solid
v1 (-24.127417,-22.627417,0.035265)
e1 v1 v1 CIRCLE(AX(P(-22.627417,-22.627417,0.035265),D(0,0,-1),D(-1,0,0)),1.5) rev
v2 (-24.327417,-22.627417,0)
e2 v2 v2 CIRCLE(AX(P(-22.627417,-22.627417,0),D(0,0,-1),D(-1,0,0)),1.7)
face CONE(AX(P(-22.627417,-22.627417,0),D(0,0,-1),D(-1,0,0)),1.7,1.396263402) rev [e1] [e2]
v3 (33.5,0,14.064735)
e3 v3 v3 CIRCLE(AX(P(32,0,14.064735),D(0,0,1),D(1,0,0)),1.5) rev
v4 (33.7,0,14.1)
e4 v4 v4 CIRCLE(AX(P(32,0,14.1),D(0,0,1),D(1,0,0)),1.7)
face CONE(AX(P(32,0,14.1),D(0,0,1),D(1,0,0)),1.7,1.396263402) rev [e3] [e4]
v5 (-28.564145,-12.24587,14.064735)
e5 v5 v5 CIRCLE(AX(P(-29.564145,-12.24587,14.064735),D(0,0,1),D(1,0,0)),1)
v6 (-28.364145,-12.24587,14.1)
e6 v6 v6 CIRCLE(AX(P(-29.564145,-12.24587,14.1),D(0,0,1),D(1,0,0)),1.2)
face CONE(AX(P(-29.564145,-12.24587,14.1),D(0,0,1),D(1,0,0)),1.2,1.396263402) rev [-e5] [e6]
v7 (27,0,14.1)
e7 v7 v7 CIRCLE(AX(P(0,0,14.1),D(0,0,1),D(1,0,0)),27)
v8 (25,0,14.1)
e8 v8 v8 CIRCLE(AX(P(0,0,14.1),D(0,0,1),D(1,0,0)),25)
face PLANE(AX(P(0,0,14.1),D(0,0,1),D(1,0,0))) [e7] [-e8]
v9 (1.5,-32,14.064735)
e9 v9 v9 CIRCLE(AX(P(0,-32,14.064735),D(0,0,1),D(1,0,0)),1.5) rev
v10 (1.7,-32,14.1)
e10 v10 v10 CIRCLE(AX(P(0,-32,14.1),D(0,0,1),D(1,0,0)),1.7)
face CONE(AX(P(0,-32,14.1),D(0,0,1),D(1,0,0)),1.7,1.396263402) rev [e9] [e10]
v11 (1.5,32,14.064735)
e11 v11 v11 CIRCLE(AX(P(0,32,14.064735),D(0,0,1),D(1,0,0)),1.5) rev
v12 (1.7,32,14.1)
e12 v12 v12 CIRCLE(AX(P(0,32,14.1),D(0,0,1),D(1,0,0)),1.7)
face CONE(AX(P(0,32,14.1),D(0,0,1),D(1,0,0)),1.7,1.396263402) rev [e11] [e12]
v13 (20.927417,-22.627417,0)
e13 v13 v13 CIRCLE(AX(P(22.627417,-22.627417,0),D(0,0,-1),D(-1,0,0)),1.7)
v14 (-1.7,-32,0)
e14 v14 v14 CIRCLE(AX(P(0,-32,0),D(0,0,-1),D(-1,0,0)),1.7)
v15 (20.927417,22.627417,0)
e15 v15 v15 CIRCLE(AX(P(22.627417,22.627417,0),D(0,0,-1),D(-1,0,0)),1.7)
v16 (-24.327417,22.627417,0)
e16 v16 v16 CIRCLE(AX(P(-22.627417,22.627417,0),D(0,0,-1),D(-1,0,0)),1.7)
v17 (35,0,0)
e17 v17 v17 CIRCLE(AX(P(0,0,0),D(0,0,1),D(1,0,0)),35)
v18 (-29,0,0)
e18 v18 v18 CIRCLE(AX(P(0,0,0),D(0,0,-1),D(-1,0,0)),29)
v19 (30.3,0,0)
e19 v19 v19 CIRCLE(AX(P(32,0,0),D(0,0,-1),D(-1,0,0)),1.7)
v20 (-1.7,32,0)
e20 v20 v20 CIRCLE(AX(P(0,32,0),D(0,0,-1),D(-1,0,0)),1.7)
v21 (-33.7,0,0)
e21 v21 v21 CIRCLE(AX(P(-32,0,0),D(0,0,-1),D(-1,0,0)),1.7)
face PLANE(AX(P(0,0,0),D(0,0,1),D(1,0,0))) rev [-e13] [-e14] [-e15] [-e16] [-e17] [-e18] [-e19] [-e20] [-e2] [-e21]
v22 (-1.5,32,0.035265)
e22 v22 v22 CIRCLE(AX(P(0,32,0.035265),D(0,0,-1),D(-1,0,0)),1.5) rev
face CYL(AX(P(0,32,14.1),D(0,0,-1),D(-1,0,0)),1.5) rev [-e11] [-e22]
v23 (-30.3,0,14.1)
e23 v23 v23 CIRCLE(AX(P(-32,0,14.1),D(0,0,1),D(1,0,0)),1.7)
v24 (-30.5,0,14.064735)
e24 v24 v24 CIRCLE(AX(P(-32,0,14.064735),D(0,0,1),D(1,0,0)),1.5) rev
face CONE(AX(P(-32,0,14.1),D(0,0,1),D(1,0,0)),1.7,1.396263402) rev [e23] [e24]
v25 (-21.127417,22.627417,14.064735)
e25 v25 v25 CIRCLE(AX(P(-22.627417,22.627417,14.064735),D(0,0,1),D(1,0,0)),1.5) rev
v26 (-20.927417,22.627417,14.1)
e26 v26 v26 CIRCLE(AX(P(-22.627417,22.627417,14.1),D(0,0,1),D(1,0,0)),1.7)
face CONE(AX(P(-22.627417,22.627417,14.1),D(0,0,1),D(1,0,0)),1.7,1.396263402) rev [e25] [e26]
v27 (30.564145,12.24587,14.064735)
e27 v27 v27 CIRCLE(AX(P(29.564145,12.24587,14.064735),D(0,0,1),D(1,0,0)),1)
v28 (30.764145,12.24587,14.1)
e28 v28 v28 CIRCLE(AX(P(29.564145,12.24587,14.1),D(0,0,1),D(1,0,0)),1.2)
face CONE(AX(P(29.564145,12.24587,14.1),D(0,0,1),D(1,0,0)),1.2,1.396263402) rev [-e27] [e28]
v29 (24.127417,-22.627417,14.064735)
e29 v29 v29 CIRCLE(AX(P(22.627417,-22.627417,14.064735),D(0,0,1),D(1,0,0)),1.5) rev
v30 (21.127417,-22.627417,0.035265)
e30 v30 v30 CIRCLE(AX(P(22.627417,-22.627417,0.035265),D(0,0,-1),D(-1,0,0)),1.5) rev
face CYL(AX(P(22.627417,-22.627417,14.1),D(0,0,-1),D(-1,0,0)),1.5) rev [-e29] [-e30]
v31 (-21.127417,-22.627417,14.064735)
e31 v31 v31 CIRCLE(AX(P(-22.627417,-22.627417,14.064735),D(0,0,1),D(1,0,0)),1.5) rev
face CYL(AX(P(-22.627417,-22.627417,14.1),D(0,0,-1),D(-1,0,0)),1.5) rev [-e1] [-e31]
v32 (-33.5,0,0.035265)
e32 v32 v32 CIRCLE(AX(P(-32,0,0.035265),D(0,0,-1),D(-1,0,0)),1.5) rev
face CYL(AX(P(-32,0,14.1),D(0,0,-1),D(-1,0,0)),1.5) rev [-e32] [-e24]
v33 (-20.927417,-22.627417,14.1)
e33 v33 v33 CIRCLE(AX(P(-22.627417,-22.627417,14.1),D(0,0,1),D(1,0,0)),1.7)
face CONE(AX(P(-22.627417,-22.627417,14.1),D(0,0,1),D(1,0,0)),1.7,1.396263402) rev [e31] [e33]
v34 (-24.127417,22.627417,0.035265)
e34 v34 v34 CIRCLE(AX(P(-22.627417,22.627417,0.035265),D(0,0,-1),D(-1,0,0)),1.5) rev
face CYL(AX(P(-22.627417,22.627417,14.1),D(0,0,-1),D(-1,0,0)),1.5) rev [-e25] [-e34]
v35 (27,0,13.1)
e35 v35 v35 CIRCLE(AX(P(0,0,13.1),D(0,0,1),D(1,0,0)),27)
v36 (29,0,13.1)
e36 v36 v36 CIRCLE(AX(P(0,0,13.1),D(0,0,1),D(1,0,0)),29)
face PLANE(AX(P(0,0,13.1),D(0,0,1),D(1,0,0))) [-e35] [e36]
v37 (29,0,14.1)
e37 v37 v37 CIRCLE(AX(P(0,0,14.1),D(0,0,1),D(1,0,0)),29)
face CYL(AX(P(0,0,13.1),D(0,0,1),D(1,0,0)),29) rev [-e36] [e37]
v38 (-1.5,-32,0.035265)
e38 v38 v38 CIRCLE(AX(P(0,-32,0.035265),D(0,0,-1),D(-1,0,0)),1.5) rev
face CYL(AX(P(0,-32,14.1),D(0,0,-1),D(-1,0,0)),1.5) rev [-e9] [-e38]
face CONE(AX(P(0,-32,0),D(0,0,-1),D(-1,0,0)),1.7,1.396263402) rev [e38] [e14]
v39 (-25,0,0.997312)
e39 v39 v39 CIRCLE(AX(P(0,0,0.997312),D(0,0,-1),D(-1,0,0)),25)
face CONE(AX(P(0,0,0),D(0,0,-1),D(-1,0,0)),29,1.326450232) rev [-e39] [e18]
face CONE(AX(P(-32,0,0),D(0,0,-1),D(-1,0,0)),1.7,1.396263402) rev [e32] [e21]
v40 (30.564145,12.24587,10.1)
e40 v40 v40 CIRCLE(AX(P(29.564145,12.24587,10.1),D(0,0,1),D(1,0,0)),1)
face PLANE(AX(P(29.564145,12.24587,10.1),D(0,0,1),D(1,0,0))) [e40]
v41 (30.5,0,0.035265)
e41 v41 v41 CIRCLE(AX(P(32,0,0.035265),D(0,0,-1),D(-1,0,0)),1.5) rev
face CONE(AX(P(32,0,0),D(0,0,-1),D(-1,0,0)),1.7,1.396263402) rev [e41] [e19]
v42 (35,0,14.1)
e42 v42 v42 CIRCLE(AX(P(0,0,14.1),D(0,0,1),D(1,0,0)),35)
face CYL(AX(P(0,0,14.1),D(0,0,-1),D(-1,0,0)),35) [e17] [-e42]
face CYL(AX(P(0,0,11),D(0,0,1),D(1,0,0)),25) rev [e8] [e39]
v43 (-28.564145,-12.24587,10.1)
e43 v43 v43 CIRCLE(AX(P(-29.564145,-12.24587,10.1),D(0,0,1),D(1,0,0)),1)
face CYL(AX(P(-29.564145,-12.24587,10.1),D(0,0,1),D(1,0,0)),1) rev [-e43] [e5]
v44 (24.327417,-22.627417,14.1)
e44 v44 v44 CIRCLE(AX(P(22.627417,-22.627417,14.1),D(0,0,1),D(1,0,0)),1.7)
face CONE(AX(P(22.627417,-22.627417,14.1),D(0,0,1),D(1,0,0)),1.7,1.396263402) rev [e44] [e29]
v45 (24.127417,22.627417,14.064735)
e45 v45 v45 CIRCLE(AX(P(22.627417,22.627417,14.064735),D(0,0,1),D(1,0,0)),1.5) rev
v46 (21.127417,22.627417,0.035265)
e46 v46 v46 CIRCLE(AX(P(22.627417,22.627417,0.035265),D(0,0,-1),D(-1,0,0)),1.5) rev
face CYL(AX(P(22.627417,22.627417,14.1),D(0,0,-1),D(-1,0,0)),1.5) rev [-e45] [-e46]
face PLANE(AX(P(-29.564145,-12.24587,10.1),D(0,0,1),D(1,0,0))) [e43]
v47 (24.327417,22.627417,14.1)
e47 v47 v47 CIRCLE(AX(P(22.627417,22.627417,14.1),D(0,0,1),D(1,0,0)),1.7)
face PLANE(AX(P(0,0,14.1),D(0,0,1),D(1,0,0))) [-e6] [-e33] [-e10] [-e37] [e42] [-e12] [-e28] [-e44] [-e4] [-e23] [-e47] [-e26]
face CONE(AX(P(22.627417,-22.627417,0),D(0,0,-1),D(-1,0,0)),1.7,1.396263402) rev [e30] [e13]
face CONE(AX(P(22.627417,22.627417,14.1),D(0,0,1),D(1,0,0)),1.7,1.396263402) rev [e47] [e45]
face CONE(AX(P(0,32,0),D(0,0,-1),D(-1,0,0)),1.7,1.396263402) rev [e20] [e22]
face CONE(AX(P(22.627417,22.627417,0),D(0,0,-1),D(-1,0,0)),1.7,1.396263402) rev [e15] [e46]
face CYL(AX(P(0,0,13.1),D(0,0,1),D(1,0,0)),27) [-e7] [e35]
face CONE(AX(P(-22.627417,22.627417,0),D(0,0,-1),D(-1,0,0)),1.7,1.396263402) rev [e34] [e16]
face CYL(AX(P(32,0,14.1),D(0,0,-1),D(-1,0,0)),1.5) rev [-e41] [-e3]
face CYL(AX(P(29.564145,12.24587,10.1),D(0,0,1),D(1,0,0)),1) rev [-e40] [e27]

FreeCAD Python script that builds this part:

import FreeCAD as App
import Part
import Sketcher
Q = App.Units.Quantity


def faces_at(feature, points):
    """Names of the faces that lie closest to the given points."""
    faces = feature.Shape.Faces
    near = lambda p: min(range(len(faces)), key=lambda i: faces[i].distToShape(Part.Vertex(*p))[0])
    return sorted({f"Face{near(p) + 1}" for p in points})


def add_polygon(sketch, points):
    """Adds a closed chain of lines whose ends are joined by coincident constraints."""
    first, n = sketch.GeometryCount, len(points)
    for a, b in zip(points, points[1:] + points[:1]):
        sketch.addGeometry(Part.LineSegment(App.Vector(*a, 0), App.Vector(*b, 0)), False)
    for i in range(n):
        sketch.addConstraint(Sketcher.Constraint("Coincident", first + i, 2, first + (i + 1) % n, 1))

doc = App.newDocument("Part")
body = doc.addObject("PartDesign::Body", "Body")

# Sketch on XY plane
sketch1 = doc.addObject("Sketcher::SketchObject", "Sketch")
body.addObject(sketch1)
sketch1.AttachmentSupport = (doc.XY_Plane, [""])
sketch1.MapMode = "FlatFace"
sketch1.addGeometry([
    Part.Circle(App.Vector(0, 0, 0), App.Vector(0, 0, 1), 35),  # 0
    Part.Circle(App.Vector(-22.6, -22.6, 0), App.Vector(0, 0, 1), 1.5),  # 1
    Part.Circle(App.Vector(0, -32, 0), App.Vector(0, 0, 1), 1.5),  # 2
    Part.Circle(App.Vector(22.6, -22.6, 0), App.Vector(0, 0, 1), 1.5),  # 3
    Part.Circle(App.Vector(-32, 0, 0), App.Vector(0, 0, 1), 1.5),  # 4
    Part.Circle(App.Vector(-22.6, 22.6, 0), App.Vector(0, 0, 1), 1.5),  # 5
    Part.Circle(App.Vector(0, 0, 0), App.Vector(0, 0, 1), 29),  # 6
    Part.Circle(App.Vector(32, 0, 0), App.Vector(0, 0, 1), 1.5),  # 7
    Part.Circle(App.Vector(0, 32, 0), App.Vector(0, 0, 1), 1.5),  # 8
    Part.Circle(App.Vector(22.6, 22.6, 0), App.Vector(0, 0, 1), 1.5),  # 9
], False)
sketch1.addConstraint([
    Sketcher.Constraint("Coincident", 0, 3, -1, 1),
    Sketcher.Constraint("Coincident", 6, 3, -1, 1),
    Sketcher.Constraint("Equal", 1, 2),
    Sketcher.Constraint("Equal", 2, 3),
    Sketcher.Constraint("Equal", 3, 4),
    Sketcher.Constraint("Equal", 4, 5),
    Sketcher.Constraint("Equal", 5, 7),
    Sketcher.Constraint("Equal", 7, 8),
    Sketcher.Constraint("Equal", 8, 9),
    Sketcher.Constraint("Symmetric", 3, 3, 5, 3, -1, 1),
    Sketcher.Constraint("Symmetric", 4, 3, 7, 3, -1, 1),
    Sketcher.Constraint("Symmetric", 2, 3, 8, 3, -1, 1),
    Sketcher.Constraint("Symmetric", 1, 3, 9, 3, -1, 1),
    Sketcher.Constraint("Symmetric", 1, 3, 3, 3, -2),
    Sketcher.Constraint("PointOnObject", 2, 3, -2),
    Sketcher.Constraint("PointOnObject", 4, 3, -1),
    Sketcher.Constraint("Diameter", 0, Q("70 mm")),
    Sketcher.Constraint("Diameter", 1, Q("3 mm")),
    Sketcher.Constraint("Diameter", 6, Q("58 mm")),
    Sketcher.Constraint("DistanceY", 2, 3, -1, 1, Q("32 mm")),
    Sketcher.Constraint("DistanceX", 4, 3, -1, 1, Q("32 mm")),
    Sketcher.Constraint("DistanceX", 1, 3, -1, 1, Q("22.627417 mm")),
    Sketcher.Constraint("DistanceY", 1, 3, -1, 1, Q("22.627417 mm")),
])
pad1 = doc.addObject("PartDesign::Pad", "Pad")
body.addObject(pad1)
pad1.Profile = sketch1
pad1.Length = 14.1
body2 = doc.addObject("PartDesign::Body", "Body001")

# Sketch on XY plane
sketch2 = doc.addObject("Sketcher::SketchObject", "Sketch001")
body2.addObject(sketch2)
sketch2.AttachmentSupport = (doc.getObject("XY_Plane001"), [""])
sketch2.MapMode = "FlatFace"
sketch2.addGeometry([
    Part.Circle(App.Vector(0, 0, 0), App.Vector(0, 0, 1), 29),
    Part.Circle(App.Vector(0, 0, 0), App.Vector(0, 0, 1), 25),
], False)
sketch2.addConstraint([
    Sketcher.Constraint("Coincident", 0, 3, -1, 1),
    Sketcher.Constraint("Coincident", 1, 3, -1, 1),
    Sketcher.Constraint("Diameter", 0, Q("58 mm")),
    Sketcher.Constraint("Diameter", 1, Q("50 mm")),
])
pad2 = doc.addObject("PartDesign::Pad", "Pad001")
body2.addObject(pad2)
pad2.Profile = sketch2
pad2.Length = 14.1
body3 = doc.addObject("PartDesign::Body", "Body002")

# Sketch on XY plane
sketch3 = doc.addObject("Sketcher::SketchObject", "Sketch002")
body3.addObject(sketch3)
sketch3.AttachmentSupport = (doc.getObject("XY_Plane002"), [""])
sketch3.MapMode = "FlatFace"
sketch3.addGeometry(Part.Circle(App.Vector(0, 0, 0), App.Vector(0, 0, 1), 29), False)
sketch3.addConstraint([
    Sketcher.Constraint("Coincident", 0, 3, -1, 1),
    Sketcher.Constraint("Diameter", 0, Q("58 mm")),
])
pad3 = doc.addObject("PartDesign::Pad", "Pad002")
body3.addObject(pad3)
pad3.Profile = sketch3
pad3.Length = 1.1
doc.recompute()

draft = doc.addObject("PartDesign::Draft", "Draft")
body3.addObject(draft)
draft.Base = (pad3, faces_at(pad3, [(-29, 0, 0.55)]))
draft.NeutralPlane = (doc.getObject("XY_Plane002"), [""])
draft.Angle = 76
draft.Reversed = False
doc.recompute()

boolean = doc.addObject("PartDesign::Boolean", "Boolean")
body2.addObject(boolean)
boolean.Type = "Cut"
boolean.addObjects([body3])
doc.recompute()

boolean2 = doc.addObject("PartDesign::Boolean", "Boolean001")
body.addObject(boolean2)
boolean2.Type = "Fuse"
boolean2.addObjects([body2])

# Sketch on XY plane
sketch4 = doc.addObject("Sketcher::SketchObject", "Sketch003")
body.addObject(sketch4)
sketch4.AttachmentSupport = (doc.XY_Plane, [""])
sketch4.MapMode = "FlatFace"
sketch4.AttachmentOffset = App.Placement(App.Vector(0, 0, 11), App.Rotation())
sketch4.addGeometry([
    Part.Circle(App.Vector(0, 0, 0), App.Vector(0, 0, 1), 29),
    Part.Circle(App.Vector(0, 0, 0), App.Vector(0, 0, 1), 25),
], False)
sketch4.addConstraint([
    Sketcher.Constraint("Coincident", 0, 3, -1, 1),
    Sketcher.Constraint("Coincident", 1, 3, -1, 1),
    Sketcher.Constraint("Diameter", 0, Q("58 mm")),
    Sketcher.Constraint("Diameter", 1, Q("50 mm")),
])
pad4 = doc.addObject("PartDesign::Pad", "Pad003")
body.addObject(pad4)
pad4.Profile = sketch4
pad4.Length = 3.1

# Sketch on XY plane
sketch5 = doc.addObject("Sketcher::SketchObject", "Sketch004")
body.addObject(sketch5)
sketch5.AttachmentSupport = (doc.XY_Plane, [""])
sketch5.MapMode = "FlatFace"
sketch5.AttachmentOffset = App.Placement(App.Vector(0, 0, 14.1), App.Rotation())
sketch5.addGeometry([
    Part.Circle(App.Vector(0, 0, 0), App.Vector(0, 0, 1), 29),
    Part.Circle(App.Vector(0, 0, 0), App.Vector(0, 0, 1), 27),
], False)
sketch5.addConstraint([
    Sketcher.Constraint("Coincident", 0, 3, -1, 1),
    Sketcher.Constraint("Coincident", 1, 3, -1, 1),
    Sketcher.Constraint("Diameter", 0, Q("58 mm")),
    Sketcher.Constraint("Diameter", 1, Q("54 mm")),
])
pocket1 = doc.addObject("PartDesign::Pocket", "Pocket")
body.addObject(pocket1)
pocket1.Profile = sketch5
pocket1.Length = 1

# Sketch on YZ plane
sketch6 = doc.addObject("Sketcher::SketchObject", "Sketch005")
body.addObject(sketch6)
sketch6.AttachmentSupport = (doc.YZ_Plane, [""])
sketch6.MapMode = "FlatFace"
add_polygon(sketch6, [(32, 0), (33.7, 0), (32, 0.3)])  # lines 0-2
sketch6.addGeometry(Part.LineSegment(App.Vector(32, 0, 0), App.Vector(32, 0.3, 0)), True)  # axis
sketch6.addConstraint([
    Sketcher.Constraint("Horizontal", 0),
    Sketcher.Constraint("Vertical", 2),
    Sketcher.Constraint("Vertical", 3),
    Sketcher.Constraint("Coincident", 3, 1, 2, 2),
    Sketcher.Constraint("PointOnObject", 0, 2, -1),
    Sketcher.Constraint("Equal", 2, 3),
    Sketcher.Constraint("Angle", 1, Q("170 deg")),
    Sketcher.Constraint("DistanceX", 0, 1, 0, 2, Q("1.7 mm")),
    Sketcher.Constraint("DistanceX", -1, 1, 1, 2, Q("32 mm")),
])
groove = doc.addObject("PartDesign::Groove", "Groove")
body.addObject(groove)
groove.Profile = sketch6
groove.ReferenceAxis = (sketch6, ["Axis0"])
groove.Angle = 360

# Sketch on YZ plane
sketch7 = doc.addObject("Sketcher::SketchObject", "Sketch006")
body.addObject(sketch7)
sketch7.AttachmentSupport = (doc.YZ_Plane, [""])
sketch7.MapMode = "FlatFace"
sketch7.AttachmentOffset = App.Placement(App.Vector(0, 0, -22.627417), App.Rotation())
add_polygon(sketch7, [(22.63, 0), (24.33, 0), (22.63, 0.3)])  # lines 0-2
sketch7.addGeometry(Part.LineSegment(App.Vector(22.63, 0, 0), App.Vector(22.63, 0.3, 0)), True)  # axis
sketch7.addConstraint([
    Sketcher.Constraint("Horizontal", 0),
    Sketcher.Constraint("Vertical", 2),
    Sketcher.Constraint("Vertical", 3),
    Sketcher.Constraint("Coincident", 3, 1, 2, 2),
    Sketcher.Constraint("PointOnObject", 0, 2, -1),
    Sketcher.Constraint("Equal", 2, 3),
    Sketcher.Constraint("Angle", 1, Q("170 deg")),
    Sketcher.Constraint("DistanceX", 0, 1, 0, 2, Q("1.7 mm")),
    Sketcher.Constraint("DistanceX", -1, 1, 0, 2, Q("24.327417 mm")),
])
groove2 = doc.addObject("PartDesign::Groove", "Groove001")
body.addObject(groove2)
groove2.Profile = sketch7
groove2.ReferenceAxis = (sketch7, ["Axis0"])
groove2.Angle = 360

# Sketch on YZ plane
sketch8 = doc.addObject("Sketcher::SketchObject", "Sketch007")
body.addObject(sketch8)
sketch8.AttachmentSupport = (doc.YZ_Plane, [""])
sketch8.MapMode = "FlatFace"
sketch8.AttachmentOffset = App.Placement(App.Vector(0, 0, -32), App.Rotation())
add_polygon(sketch8, [(0, 0), (1.7, 0), (0, 0.3)])  # lines 0-2
sketch8.addConstraint([
    Sketcher.Constraint("Horizontal", 0),
    Sketcher.Constraint("Vertical", 2),
    Sketcher.Constraint("Coincident", 2, 2, -1, 1),
    Sketcher.Constraint("Angle", 1, Q("170 deg")),
    Sketcher.Constraint("DistanceX", 0, 1, 0, 2, Q("1.7 mm")),
])
groove3 = doc.addObject("PartDesign::Groove", "Groove002")
body.addObject(groove3)
groove3.Profile = sketch8
groove3.ReferenceAxis = (sketch8, ["V_Axis"])
groove3.Angle = 360

# Sketch on YZ plane
sketch9 = doc.addObject("Sketcher::SketchObject", "Sketch008")
body.addObject(sketch9)
sketch9.AttachmentSupport = (doc.YZ_Plane, [""])
sketch9.MapMode = "FlatFace"
sketch9.AttachmentOffset = App.Placement(App.Vector(0, 0, -22.627417), App.Rotation())
add_polygon(sketch9, [(-22.63, 0), (-20.93, 0), (-22.63, 0.3)])  # lines 0-2
sketch9.addGeometry(Part.LineSegment(App.Vector(-22.63, 0, 0), App.Vector(-22.63, 0.3, 0)), True)  # axis
sketch9.addConstraint([
    Sketcher.Constraint("Horizontal", 0),
    Sketcher.Constraint("Vertical", 2),
    Sketcher.Constraint("Vertical", 3),
    Sketcher.Constraint("Coincident", 3, 1, 2, 2),
    Sketcher.Constraint("PointOnObject", 0, 2, -1),
    Sketcher.Constraint("Equal", 2, 3),
    Sketcher.Constraint("Angle", 1, Q("170 deg")),
    Sketcher.Constraint("DistanceX", 0, 1, 0, 2, Q("1.7 mm")),
    Sketcher.Constraint("DistanceX", 0, 2, -1, 1, Q("20.927417 mm")),
])
groove4 = doc.addObject("PartDesign::Groove", "Groove003")
body.addObject(groove4)
groove4.Profile = sketch9
groove4.ReferenceAxis = (sketch9, ["Axis0"])
groove4.Angle = 360

# Sketch on YZ plane
sketch10 = doc.addObject("Sketcher::SketchObject", "Sketch009")
body.addObject(sketch10)
sketch10.AttachmentSupport = (doc.YZ_Plane, [""])
sketch10.MapMode = "FlatFace"
add_polygon(sketch10, [(-32, 0), (-30.3, 0), (-32, 0.3)])  # lines 0-2
sketch10.addGeometry(Part.LineSegment(App.Vector(-32, 0, 0), App.Vector(-32, 0.3, 0)), True)  # axis
sketch10.addConstraint([
    Sketcher.Constraint("Horizontal", 0),
    Sketcher.Constraint("Vertical", 2),
    Sketcher.Constraint("Vertical", 3),
    Sketcher.Constraint("Coincident", 3, 1, 2, 2),
    Sketcher.Constraint("PointOnObject", 0, 2, -1),
    Sketcher.Constraint("Equal", 2, 3),
    Sketcher.Constraint("Angle", 1, Q("170 deg")),
    Sketcher.Constraint("DistanceX", 0, 1, 0, 2, Q("1.7 mm")),
    Sketcher.Constraint("DistanceX", 1, 2, -1, 1, Q("32 mm")),
])
groove5 = doc.addObject("PartDesign::Groove", "Groove004")
body.addObject(groove5)
groove5.Profile = sketch10
groove5.ReferenceAxis = (sketch10, ["Axis0"])
groove5.Angle = 360

# Sketch on YZ plane
sketch11 = doc.addObject("Sketcher::SketchObject", "Sketch010")
body.addObject(sketch11)
sketch11.AttachmentSupport = (doc.YZ_Plane, [""])
sketch11.MapMode = "FlatFace"
sketch11.AttachmentOffset = App.Placement(App.Vector(0, 0, 22.627417), App.Rotation())
add_polygon(sketch11, [(-22.63, 0), (-20.93, 0), (-22.63, 0.3)])  # lines 0-2
sketch11.addGeometry(Part.LineSegment(App.Vector(-22.63, 0, 0), App.Vector(-22.63, 0.3, 0)), True)  # axis
sketch11.addConstraint([
    Sketcher.Constraint("Horizontal", 0),
    Sketcher.Constraint("Vertical", 2),
    Sketcher.Constraint("Vertical", 3),
    Sketcher.Constraint("Coincident", 3, 1, 2, 2),
    Sketcher.Constraint("PointOnObject", 0, 2, -1),
    Sketcher.Constraint("Equal", 2, 3),
    Sketcher.Constraint("Angle", 1, Q("170 deg")),
    Sketcher.Constraint("DistanceX", 0, 1, 0, 2, Q("1.7 mm")),
    Sketcher.Constraint("DistanceX", 0, 2, -1, 1, Q("20.927417 mm")),
])
groove6 = doc.addObject("PartDesign::Groove", "Groove005")
body.addObject(groove6)
groove6.Profile = sketch11
groove6.ReferenceAxis = (sketch11, ["Axis0"])
groove6.Angle = 360

# Sketch on YZ plane
sketch12 = doc.addObject("Sketcher::SketchObject", "Sketch011")
body.addObject(sketch12)
sketch12.AttachmentSupport = (doc.YZ_Plane, [""])
sketch12.MapMode = "FlatFace"
sketch12.AttachmentOffset = App.Placement(App.Vector(0, 0, 32), App.Rotation())
add_polygon(sketch12, [(0, 0), (1.7, 0), (0, 0.3)])  # lines 0-2
sketch12.addConstraint([
    Sketcher.Constraint("Horizontal", 0),
    Sketcher.Constraint("Vertical", 2),
    Sketcher.Constraint("Coincident", 2, 2, -1, 1),
    Sketcher.Constraint("Angle", 1, Q("170 deg")),
    Sketcher.Constraint("DistanceX", 0, 1, 0, 2, Q("1.7 mm")),
])
groove7 = doc.addObject("PartDesign::Groove", "Groove006")
body.addObject(groove7)
groove7.Profile = sketch12
groove7.ReferenceAxis = (sketch12, ["V_Axis"])
groove7.Angle = 360

# Sketch on YZ plane
sketch13 = doc.addObject("Sketcher::SketchObject", "Sketch012")
body.addObject(sketch13)
sketch13.AttachmentSupport = (doc.YZ_Plane, [""])
sketch13.MapMode = "FlatFace"
sketch13.AttachmentOffset = App.Placement(App.Vector(0, 0, 22.627417), App.Rotation())
add_polygon(sketch13, [(22.63, 0), (24.33, 0), (22.63, 0.3)])  # lines 0-2
sketch13.addGeometry(Part.LineSegment(App.Vector(22.63, 0, 0), App.Vector(22.63, 0.3, 0)), True)  # axis
sketch13.addConstraint([
    Sketcher.Constraint("Horizontal", 0),
    Sketcher.Constraint("Vertical", 2),
    Sketcher.Constraint("Vertical", 3),
    Sketcher.Constraint("Coincident", 3, 1, 2, 2),
    Sketcher.Constraint("PointOnObject", 0, 2, -1),
    Sketcher.Constraint("Equal", 2, 3),
    Sketcher.Constraint("Angle", 1, Q("170 deg")),
    Sketcher.Constraint("DistanceX", 0, 1, 0, 2, Q("1.7 mm")),
    Sketcher.Constraint("DistanceX", -1, 1, 0, 2, Q("24.327417 mm")),
])
groove8 = doc.addObject("PartDesign::Groove", "Groove007")
body.addObject(groove8)
groove8.Profile = sketch13
groove8.ReferenceAxis = (sketch13, ["Axis0"])
groove8.Angle = 360

# Sketch on YZ plane
sketch14 = doc.addObject("Sketcher::SketchObject", "Sketch013")
body.addObject(sketch14)
sketch14.AttachmentSupport = (doc.YZ_Plane, [""])
sketch14.MapMode = "FlatFace"
add_polygon(sketch14, [(32, 14.1), (30.3, 14.1), (32, 13.8)])  # lines 0-2
sketch14.addGeometry(Part.LineSegment(App.Vector(32, 14.1, 0), App.Vector(32, 13.8, 0)), True)  # axis
sketch14.addConstraint([
    Sketcher.Constraint("Horizontal", 0),
    Sketcher.Constraint("Vertical", 2),
    Sketcher.Constraint("Vertical", 3),
    Sketcher.Constraint("Coincident", 3, 1, 2, 2),
    Sketcher.Constraint("Equal", 2, 3),
    Sketcher.Constraint("Angle", 1, Q("-10 deg")),
    Sketcher.Constraint("DistanceX", 0, 2, 0, 1, Q("1.7 mm")),
    Sketcher.Constraint("DistanceX", -1, 1, 1, 2, Q("32 mm")),
    Sketcher.Constraint("DistanceY", -1, 1, 0, 2, Q("14.1 mm")),
])
groove9 = doc.addObject("PartDesign::Groove", "Groove008")
body.addObject(groove9)
groove9.Profile = sketch14
groove9.ReferenceAxis = (sketch14, ["Axis0"])
groove9.Angle = 360

# Sketch on YZ plane
sketch15 = doc.addObject("Sketcher::SketchObject", "Sketch014")
body.addObject(sketch15)
sketch15.AttachmentSupport = (doc.YZ_Plane, [""])
sketch15.MapMode = "FlatFace"
sketch15.AttachmentOffset = App.Placement(App.Vector(0, 0, 22.627417), App.Rotation())
add_polygon(sketch15, [(22.63, 14.1), (20.93, 14.1), (22.63, 13.8)])  # lines 0-2
sketch15.addGeometry(Part.LineSegment(App.Vector(22.63, 14.1, 0), App.Vector(22.63, 13.8, 0)), True)  # axis
sketch15.addConstraint([
    Sketcher.Constraint("Horizontal", 0),
    Sketcher.Constraint("Vertical", 2),
    Sketcher.Constraint("Vertical", 3),
    Sketcher.Constraint("Coincident", 3, 1, 2, 2),
    Sketcher.Constraint("Equal", 2, 3),
    Sketcher.Constraint("Angle", 1, Q("-10 deg")),
    Sketcher.Constraint("DistanceX", 0, 2, 0, 1, Q("1.7 mm")),
    Sketcher.Constraint("DistanceY", -1, 1, 0, 2, Q("14.1 mm")),
    Sketcher.Constraint("DistanceX", -1, 1, 0, 2, Q("20.927417 mm")),
])
groove10 = doc.addObject("PartDesign::Groove", "Groove009")
body.addObject(groove10)
groove10.Profile = sketch15
groove10.ReferenceAxis = (sketch15, ["Axis0"])
groove10.Angle = 360

# Sketch on YZ plane
sketch16 = doc.addObject("Sketcher::SketchObject", "Sketch015")
body.addObject(sketch16)
sketch16.AttachmentSupport = (doc.YZ_Plane, [""])
sketch16.MapMode = "FlatFace"
sketch16.AttachmentOffset = App.Placement(App.Vector(0, 0, 32), App.Rotation())
add_polygon(sketch16, [(0, 14.1), (-1.7, 14.1), (0, 13.8)])  # lines 0-2
sketch16.addConstraint([
    Sketcher.Constraint("Horizontal", 0),
    Sketcher.Constraint("Vertical", 2),
    Sketcher.Constraint("PointOnObject", 1, 2, -2),
    Sketcher.Constraint("Angle", 1, Q("-10 deg")),
    Sketcher.Constraint("DistanceX", 0, 2, 0, 1, Q("1.7 mm")),
    Sketcher.Constraint("DistanceY", -1, 1, 0, 2, Q("14.1 mm")),
])
groove11 = doc.addObject("PartDesign::Groove", "Groove010")
body.addObject(groove11)
groove11.Profile = sketch16
groove11.ReferenceAxis = (sketch16, ["V_Axis"])
groove11.Angle = 360

# Sketch on YZ plane
sketch17 = doc.addObject("Sketcher::SketchObject", "Sketch016")
body.addObject(sketch17)
sketch17.AttachmentSupport = (doc.YZ_Plane, [""])
sketch17.MapMode = "FlatFace"
sketch17.AttachmentOffset = App.Placement(App.Vector(0, 0, 22.627417), App.Rotation())
add_polygon(sketch17, [(-22.63, 14.1), (-24.33, 14.1), (-22.63, 13.8)])  # lines 0-2
sketch17.addGeometry(Part.LineSegment(App.Vector(-22.63, 14.1, 0), App.Vector(-22.63, 13.8, 0)), True)  # axis
sketch17.addConstraint([
    Sketcher.Constraint("Horizontal", 0),
    Sketcher.Constraint("Vertical", 2),
    Sketcher.Constraint("Vertical", 3),
    Sketcher.Constraint("Coincident", 3, 1, 2, 2),
    Sketcher.Constraint("Equal", 2, 3),
    Sketcher.Constraint("Angle", 1, Q("-10 deg")),
    Sketcher.Constraint("DistanceX", 0, 2, 0, 1, Q("1.7 mm")),
    Sketcher.Constraint("DistanceY", -1, 1, 0, 2, Q("14.1 mm")),
    Sketcher.Constraint("DistanceX", 0, 2, -1, 1, Q("24.327417 mm")),
])
groove12 = doc.addObject("PartDesign::Groove", "Groove011")
body.addObject(groove12)
groove12.Profile = sketch17
groove12.ReferenceAxis = (sketch17, ["Axis0"])
groove12.Angle = 360

# Sketch on YZ plane
sketch18 = doc.addObject("Sketcher::SketchObject", "Sketch017")
body.addObject(sketch18)
sketch18.AttachmentSupport = (doc.YZ_Plane, [""])
sketch18.MapMode = "FlatFace"
add_polygon(sketch18, [(-32, 14.1), (-33.7, 14.1), (-32, 13.8)])  # lines 0-2
sketch18.addGeometry(Part.LineSegment(App.Vector(-32, 14.1, 0), App.Vector(-32, 13.8, 0)), True)  # axis
sketch18.addConstraint([
    Sketcher.Constraint("Horizontal", 0),
    Sketcher.Constraint("Vertical", 2),
    Sketcher.Constraint("Vertical", 3),
    Sketcher.Constraint("Coincident", 3, 1, 2, 2),
    Sketcher.Constraint("Equal", 2, 3),
    Sketcher.Constraint("Angle", 1, Q("-10 deg")),
    Sketcher.Constraint("DistanceX", 0, 2, 0, 1, Q("1.7 mm")),
    Sketcher.Constraint("DistanceX", 1, 2, -1, 1, Q("32 mm")),
    Sketcher.Constraint("DistanceY", -1, 1, 0, 2, Q("14.1 mm")),
])
groove13 = doc.addObject("PartDesign::Groove", "Groove012")
body.addObject(groove13)
groove13.Profile = sketch18
groove13.ReferenceAxis = (sketch18, ["Axis0"])
groove13.Angle = 360

# Sketch on YZ plane
sketch19 = doc.addObject("Sketcher::SketchObject", "Sketch018")
body.addObject(sketch19)
sketch19.AttachmentSupport = (doc.YZ_Plane, [""])
sketch19.MapMode = "FlatFace"
sketch19.AttachmentOffset = App.Placement(App.Vector(0, 0, -22.627417), App.Rotation())
add_polygon(sketch19, [(-22.63, 14.1), (-24.33, 14.1), (-22.63, 13.8)])  # lines 0-2
sketch19.addGeometry(Part.LineSegment(App.Vector(-22.63, 14.1, 0), App.Vector(-22.63, 13.8, 0)), True)  # axis
sketch19.addConstraint([
    Sketcher.Constraint("Horizontal", 0),
    Sketcher.Constraint("Vertical", 2),
    Sketcher.Constraint("Vertical", 3),
    Sketcher.Constraint("Coincident", 3, 1, 2, 2),
    Sketcher.Constraint("Equal", 2, 3),
    Sketcher.Constraint("Angle", 1, Q("-10 deg")),
    Sketcher.Constraint("DistanceX", 0, 2, 0, 1, Q("1.7 mm")),
    Sketcher.Constraint("DistanceY", -1, 1, 0, 2, Q("14.1 mm")),
    Sketcher.Constraint("DistanceX", 0, 2, -1, 1, Q("24.327417 mm")),
])
groove14 = doc.addObject("PartDesign::Groove", "Groove013")
body.addObject(groove14)
groove14.Profile = sketch19
groove14.ReferenceAxis = (sketch19, ["Axis0"])
groove14.Angle = 360

# Sketch on YZ plane
sketch20 = doc.addObject("Sketcher::SketchObject", "Sketch019")
body.addObject(sketch20)
sketch20.AttachmentSupport = (doc.YZ_Plane, [""])
sketch20.MapMode = "FlatFace"
sketch20.AttachmentOffset = App.Placement(App.Vector(0, 0, -32), App.Rotation())
add_polygon(sketch20, [(0, 14.1), (-1.7, 14.1), (0, 13.8)])  # lines 0-2
sketch20.addConstraint([
    Sketcher.Constraint("Horizontal", 0),
    Sketcher.Constraint("Vertical", 2),
    Sketcher.Constraint("PointOnObject", 1, 2, -2),
    Sketcher.Constraint("Angle", 1, Q("-10 deg")),
    Sketcher.Constraint("DistanceX", 0, 2, 0, 1, Q("1.7 mm")),
    Sketcher.Constraint("DistanceY", -1, 1, 0, 2, Q("14.1 mm")),
])
groove15 = doc.addObject("PartDesign::Groove", "Groove014")
body.addObject(groove15)
groove15.Profile = sketch20
groove15.ReferenceAxis = (sketch20, ["V_Axis"])
groove15.Angle = 360

# Sketch on YZ plane
sketch21 = doc.addObject("Sketcher::SketchObject", "Sketch020")
body.addObject(sketch21)
sketch21.AttachmentSupport = (doc.YZ_Plane, [""])
sketch21.MapMode = "FlatFace"
sketch21.AttachmentOffset = App.Placement(App.Vector(0, 0, -22.627417), App.Rotation())
add_polygon(sketch21, [(22.63, 14.1), (20.93, 14.1), (22.63, 13.8)])  # lines 0-2
sketch21.addGeometry(Part.LineSegment(App.Vector(22.63, 14.1, 0), App.Vector(22.63, 13.8, 0)), True)  # axis
sketch21.addConstraint([
    Sketcher.Constraint("Horizontal", 0),
    Sketcher.Constraint("Vertical", 2),
    Sketcher.Constraint("Vertical", 3),
    Sketcher.Constraint("Coincident", 3, 1, 2, 2),
    Sketcher.Constraint("Equal", 2, 3),
    Sketcher.Constraint("Angle", 1, Q("-10 deg")),
    Sketcher.Constraint("DistanceX", 0, 2, 0, 1, Q("1.7 mm")),
    Sketcher.Constraint("DistanceY", -1, 1, 0, 2, Q("14.1 mm")),
    Sketcher.Constraint("DistanceX", -1, 1, 0, 2, Q("20.927417 mm")),
])
groove16 = doc.addObject("PartDesign::Groove", "Groove015")
body.addObject(groove16)
groove16.Profile = sketch21
groove16.ReferenceAxis = (sketch21, ["Axis0"])
groove16.Angle = 360

# Sketch on XY plane
sketch22 = doc.addObject("Sketcher::SketchObject", "Sketch021")
body.addObject(sketch22)
sketch22.AttachmentSupport = (doc.XY_Plane, [""])
sketch22.MapMode = "FlatFace"
sketch22.AttachmentOffset = App.Placement(App.Vector(0, 0, 14.1), App.Rotation())
sketch22.addGeometry([
    Part.Circle(App.Vector(29.6, 12.2, 0), App.Vector(0, 0, 1), 1),
    Part.Circle(App.Vector(-29.6, -12.2, 0), App.Vector(0, 0, 1), 1),
], False)
sketch22.addConstraint([
    Sketcher.Constraint("Equal", 0, 1),
    Sketcher.Constraint("Symmetric", 0, 3, 1, 3, -1, 1),
    Sketcher.Constraint("Diameter", 0, Q("2 mm")),
    Sketcher.Constraint("DistanceY", -1, 1, 0, 3, Q("12.24587 mm")),
    Sketcher.Constraint("DistanceX", 1, 3, 0, 3, Q("59.12829 mm")),
])
pocket2 = doc.addObject("PartDesign::Pocket", "Pocket001")
body.addObject(pocket2)
pocket2.Profile = sketch22
pocket2.Length = 4

# Sketch on YZ plane
sketch23 = doc.addObject("Sketcher::SketchObject", "Sketch022")
body.addObject(sketch23)
sketch23.AttachmentSupport = (doc.YZ_Plane, [""])
sketch23.MapMode = "FlatFace"
sketch23.AttachmentOffset = App.Placement(App.Vector(0, 0, 29.564145), App.Rotation())
add_polygon(sketch23, [(12.25, 14.1), (11.05, 14.1), (12.25, 13.89)])  # lines 0-2
sketch23.addGeometry(Part.LineSegment(App.Vector(12.25, 14.1, 0), App.Vector(12.25, 13.89, 0)), True)  # axis
sketch23.addConstraint([
    Sketcher.Constraint("Horizontal", 0),
    Sketcher.Constraint("Vertical", 2),
    Sketcher.Constraint("Vertical", 3),
    Sketcher.Constraint("Coincident", 3, 1, 2, 2),
    Sketcher.Constraint("Equal", 2, 3),
    Sketcher.Constraint("Angle", 1, Q("-10 deg")),
    Sketcher.Constraint("DistanceX", 0, 2, 0, 1, Q("1.2 mm")),
    Sketcher.Constraint("DistanceY", -1, 1, 0, 2, Q("14.1 mm")),
    Sketcher.Constraint("DistanceX", -1, 1, 0, 2, Q("11.04587 mm")),
])
groove17 = doc.addObject("PartDesign::Groove", "Groove016")
body.addObject(groove17)
groove17.Profile = sketch23
groove17.ReferenceAxis = (sketch23, ["Axis0"])
groove17.Angle = 360

# Sketch on YZ plane
sketch24 = doc.addObject("Sketcher::SketchObject", "Sketch023")
body.addObject(sketch24)
sketch24.AttachmentSupport = (doc.YZ_Plane, [""])
sketch24.MapMode = "FlatFace"
sketch24.AttachmentOffset = App.Placement(App.Vector(0, 0, -29.564145), App.Rotation())
add_polygon(sketch24, [(-12.25, 14.1), (-13.45, 14.1), (-12.25, 13.89)])  # lines 0-2
sketch24.addGeometry(Part.LineSegment(App.Vector(-12.25, 14.1, 0), App.Vector(-12.25, 13.89, 0)), True)  # axis
sketch24.addConstraint([
    Sketcher.Constraint("Horizontal", 0),
    Sketcher.Constraint("Vertical", 2),
    Sketcher.Constraint("Vertical", 3),
    Sketcher.Constraint("Coincident", 3, 1, 2, 2),
    Sketcher.Constraint("Equal", 2, 3),
    Sketcher.Constraint("Angle", 1, Q("-10 deg")),
    Sketcher.Constraint("DistanceX", 0, 2, 0, 1, Q("1.2 mm")),
    Sketcher.Constraint("DistanceY", -1, 1, 0, 2, Q("14.1 mm")),
    Sketcher.Constraint("DistanceX", 0, 2, -1, 1, Q("13.44587 mm")),
])
groove18 = doc.addObject("PartDesign::Groove", "Groove017")
body.addObject(groove18)
groove18.Profile = sketch24
groove18.ReferenceAxis = (sketch24, ["Axis0"])
groove18.Angle = 360

doc.recompute()
